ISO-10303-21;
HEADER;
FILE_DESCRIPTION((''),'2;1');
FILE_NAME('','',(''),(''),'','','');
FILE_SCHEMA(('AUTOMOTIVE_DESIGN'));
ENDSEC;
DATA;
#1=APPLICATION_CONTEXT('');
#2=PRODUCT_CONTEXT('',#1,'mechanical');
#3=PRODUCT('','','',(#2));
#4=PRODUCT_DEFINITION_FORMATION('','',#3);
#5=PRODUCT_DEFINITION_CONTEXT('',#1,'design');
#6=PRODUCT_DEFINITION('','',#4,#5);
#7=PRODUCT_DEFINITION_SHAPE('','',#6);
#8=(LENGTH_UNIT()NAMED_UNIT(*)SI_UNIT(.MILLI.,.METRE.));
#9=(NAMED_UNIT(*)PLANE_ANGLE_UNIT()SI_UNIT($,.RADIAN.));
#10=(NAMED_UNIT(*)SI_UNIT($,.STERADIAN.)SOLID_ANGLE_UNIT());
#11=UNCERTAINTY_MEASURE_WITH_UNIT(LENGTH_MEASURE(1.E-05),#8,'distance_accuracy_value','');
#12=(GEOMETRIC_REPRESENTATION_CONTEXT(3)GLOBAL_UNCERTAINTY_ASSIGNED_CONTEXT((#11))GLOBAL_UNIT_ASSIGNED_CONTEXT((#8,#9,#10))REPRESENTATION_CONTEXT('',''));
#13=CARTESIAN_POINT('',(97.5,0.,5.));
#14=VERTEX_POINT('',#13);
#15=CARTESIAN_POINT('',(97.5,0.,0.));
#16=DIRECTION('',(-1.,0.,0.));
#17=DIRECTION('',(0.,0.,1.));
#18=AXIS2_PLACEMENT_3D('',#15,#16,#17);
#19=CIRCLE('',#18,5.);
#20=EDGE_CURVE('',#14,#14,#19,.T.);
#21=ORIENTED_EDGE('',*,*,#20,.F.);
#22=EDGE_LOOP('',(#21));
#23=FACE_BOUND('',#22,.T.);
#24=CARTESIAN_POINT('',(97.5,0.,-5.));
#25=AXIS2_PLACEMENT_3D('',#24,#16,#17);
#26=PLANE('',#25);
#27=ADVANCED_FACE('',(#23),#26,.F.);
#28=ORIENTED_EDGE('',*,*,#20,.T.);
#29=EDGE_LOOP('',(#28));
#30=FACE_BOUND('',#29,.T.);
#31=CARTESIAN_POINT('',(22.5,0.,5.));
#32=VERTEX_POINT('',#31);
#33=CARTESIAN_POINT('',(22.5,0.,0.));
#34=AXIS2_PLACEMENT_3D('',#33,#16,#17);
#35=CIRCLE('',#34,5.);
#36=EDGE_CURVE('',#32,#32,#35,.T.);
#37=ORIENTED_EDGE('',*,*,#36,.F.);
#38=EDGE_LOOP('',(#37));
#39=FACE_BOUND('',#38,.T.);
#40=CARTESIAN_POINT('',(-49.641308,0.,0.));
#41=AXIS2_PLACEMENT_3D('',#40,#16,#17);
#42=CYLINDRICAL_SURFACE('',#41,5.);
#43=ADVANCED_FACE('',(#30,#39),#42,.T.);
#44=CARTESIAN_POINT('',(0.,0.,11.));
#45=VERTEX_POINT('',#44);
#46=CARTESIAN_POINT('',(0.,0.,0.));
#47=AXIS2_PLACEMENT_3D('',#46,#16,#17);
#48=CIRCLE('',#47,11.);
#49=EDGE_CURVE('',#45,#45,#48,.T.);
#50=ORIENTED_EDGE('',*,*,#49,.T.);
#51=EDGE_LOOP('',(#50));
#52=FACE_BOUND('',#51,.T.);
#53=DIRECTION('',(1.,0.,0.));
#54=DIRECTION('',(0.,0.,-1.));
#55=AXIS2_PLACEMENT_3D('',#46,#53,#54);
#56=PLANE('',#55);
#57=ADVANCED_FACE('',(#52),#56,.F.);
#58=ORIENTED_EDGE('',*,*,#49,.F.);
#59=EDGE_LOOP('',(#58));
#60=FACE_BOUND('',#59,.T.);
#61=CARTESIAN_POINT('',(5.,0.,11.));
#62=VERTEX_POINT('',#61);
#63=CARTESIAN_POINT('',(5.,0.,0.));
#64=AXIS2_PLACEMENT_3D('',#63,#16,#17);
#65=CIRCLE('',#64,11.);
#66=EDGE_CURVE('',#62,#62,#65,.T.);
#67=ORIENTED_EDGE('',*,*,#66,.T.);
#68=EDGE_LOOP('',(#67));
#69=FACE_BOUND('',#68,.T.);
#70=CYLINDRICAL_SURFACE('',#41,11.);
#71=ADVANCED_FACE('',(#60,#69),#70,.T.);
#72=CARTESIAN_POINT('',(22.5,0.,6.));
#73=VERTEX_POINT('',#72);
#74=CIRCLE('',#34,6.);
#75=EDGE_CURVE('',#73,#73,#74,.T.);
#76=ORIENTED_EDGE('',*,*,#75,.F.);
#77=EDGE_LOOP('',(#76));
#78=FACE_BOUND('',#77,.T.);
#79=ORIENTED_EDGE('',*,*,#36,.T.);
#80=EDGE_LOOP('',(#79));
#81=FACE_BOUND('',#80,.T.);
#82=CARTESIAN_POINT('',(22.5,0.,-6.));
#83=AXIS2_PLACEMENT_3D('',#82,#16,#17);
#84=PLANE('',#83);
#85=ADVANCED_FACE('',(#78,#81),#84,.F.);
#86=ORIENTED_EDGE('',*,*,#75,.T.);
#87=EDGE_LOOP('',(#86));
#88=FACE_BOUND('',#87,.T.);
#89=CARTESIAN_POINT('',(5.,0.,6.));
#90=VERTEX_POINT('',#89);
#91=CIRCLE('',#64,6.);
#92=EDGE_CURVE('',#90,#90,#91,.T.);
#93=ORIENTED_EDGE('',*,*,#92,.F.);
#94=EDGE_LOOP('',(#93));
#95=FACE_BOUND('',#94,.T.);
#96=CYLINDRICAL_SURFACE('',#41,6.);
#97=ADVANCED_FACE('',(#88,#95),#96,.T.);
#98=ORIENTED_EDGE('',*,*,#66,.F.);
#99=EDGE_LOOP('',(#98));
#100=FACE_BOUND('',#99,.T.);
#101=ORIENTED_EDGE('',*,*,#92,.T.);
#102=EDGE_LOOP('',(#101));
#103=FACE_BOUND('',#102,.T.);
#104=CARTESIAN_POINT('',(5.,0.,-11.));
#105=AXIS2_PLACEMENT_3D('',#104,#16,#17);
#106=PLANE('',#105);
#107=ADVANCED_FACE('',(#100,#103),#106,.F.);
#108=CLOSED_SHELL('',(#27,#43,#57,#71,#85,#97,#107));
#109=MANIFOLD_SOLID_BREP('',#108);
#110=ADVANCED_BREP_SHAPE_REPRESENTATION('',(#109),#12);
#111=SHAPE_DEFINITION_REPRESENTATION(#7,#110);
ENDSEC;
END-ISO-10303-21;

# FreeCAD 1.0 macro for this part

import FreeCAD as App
import Part
import Sketcher
Q = App.Units.Quantity


def add_polygon(sketch, points):
    """Adds a closed chain of lines whose ends are joined by coincident constraints."""
    first, n = sketch.GeometryCount, len(points)
    for a, b in zip(points, points[1:] + points[:1]):
        sketch.addGeometry(Part.LineSegment(App.Vector(*a, 0), App.Vector(*b, 0)), False)
    for i in range(n):
        sketch.addConstraint(Sketcher.Constraint("Coincident", first + i, 2, first + (i + 1) % n, 1))

doc = App.newDocument("Part")
body = doc.addObject("PartDesign::Body", "Body")

sketch1 = body.newObject("Sketcher::SketchObject", "Sketch")
sketch1.AttachmentSupport = (doc.getObject("XZ_Plane"), [""])
sketch1.MapMode = "FlatFace"
add_polygon(sketch1, [(0, -11), (0, 0), (97.5, 0), (97.5, -5), (22.5, -5), (22.5, -6), (5, -6), (5, -11)])
sketch1.addConstraint([
    Sketcher.Constraint("Vertical", 0),
    Sketcher.Constraint("Horizontal", 1),
    Sketcher.Constraint("Vertical", 2),
    Sketcher.Constraint("Horizontal", 3),
    Sketcher.Constraint("Vertical", 4),
    Sketcher.Constraint("Horizontal", 5),
    Sketcher.Constraint("Vertical", 6),
    Sketcher.Constraint("Horizontal", 7),
    Sketcher.Constraint("Coincident", 0, 2, -1, 1),
    Sketcher.Constraint("Equal", 7, 2),
    Sketcher.Constraint("Equal", 2, 6),
    Sketcher.Constraint("DistanceX", 3, 2, 3, 1, Q("75 mm")),
    Sketcher.Constraint("DistanceX", 7, 2, 7, 1, Q("5 mm")),
    Sketcher.Constraint("DistanceY", 0, 1, 0, 2, Q("11 mm")),
    Sketcher.Constraint("DistanceX", 1, 1, 1, 2, Q("97.5 mm")),
])
revolution = body.newObject("PartDesign::Revolution", "Revolution")
revolution.Profile = sketch1
revolution.ReferenceAxis = (sketch1, ["H_Axis"])
revolution.Angle = 360

doc.recompute()
